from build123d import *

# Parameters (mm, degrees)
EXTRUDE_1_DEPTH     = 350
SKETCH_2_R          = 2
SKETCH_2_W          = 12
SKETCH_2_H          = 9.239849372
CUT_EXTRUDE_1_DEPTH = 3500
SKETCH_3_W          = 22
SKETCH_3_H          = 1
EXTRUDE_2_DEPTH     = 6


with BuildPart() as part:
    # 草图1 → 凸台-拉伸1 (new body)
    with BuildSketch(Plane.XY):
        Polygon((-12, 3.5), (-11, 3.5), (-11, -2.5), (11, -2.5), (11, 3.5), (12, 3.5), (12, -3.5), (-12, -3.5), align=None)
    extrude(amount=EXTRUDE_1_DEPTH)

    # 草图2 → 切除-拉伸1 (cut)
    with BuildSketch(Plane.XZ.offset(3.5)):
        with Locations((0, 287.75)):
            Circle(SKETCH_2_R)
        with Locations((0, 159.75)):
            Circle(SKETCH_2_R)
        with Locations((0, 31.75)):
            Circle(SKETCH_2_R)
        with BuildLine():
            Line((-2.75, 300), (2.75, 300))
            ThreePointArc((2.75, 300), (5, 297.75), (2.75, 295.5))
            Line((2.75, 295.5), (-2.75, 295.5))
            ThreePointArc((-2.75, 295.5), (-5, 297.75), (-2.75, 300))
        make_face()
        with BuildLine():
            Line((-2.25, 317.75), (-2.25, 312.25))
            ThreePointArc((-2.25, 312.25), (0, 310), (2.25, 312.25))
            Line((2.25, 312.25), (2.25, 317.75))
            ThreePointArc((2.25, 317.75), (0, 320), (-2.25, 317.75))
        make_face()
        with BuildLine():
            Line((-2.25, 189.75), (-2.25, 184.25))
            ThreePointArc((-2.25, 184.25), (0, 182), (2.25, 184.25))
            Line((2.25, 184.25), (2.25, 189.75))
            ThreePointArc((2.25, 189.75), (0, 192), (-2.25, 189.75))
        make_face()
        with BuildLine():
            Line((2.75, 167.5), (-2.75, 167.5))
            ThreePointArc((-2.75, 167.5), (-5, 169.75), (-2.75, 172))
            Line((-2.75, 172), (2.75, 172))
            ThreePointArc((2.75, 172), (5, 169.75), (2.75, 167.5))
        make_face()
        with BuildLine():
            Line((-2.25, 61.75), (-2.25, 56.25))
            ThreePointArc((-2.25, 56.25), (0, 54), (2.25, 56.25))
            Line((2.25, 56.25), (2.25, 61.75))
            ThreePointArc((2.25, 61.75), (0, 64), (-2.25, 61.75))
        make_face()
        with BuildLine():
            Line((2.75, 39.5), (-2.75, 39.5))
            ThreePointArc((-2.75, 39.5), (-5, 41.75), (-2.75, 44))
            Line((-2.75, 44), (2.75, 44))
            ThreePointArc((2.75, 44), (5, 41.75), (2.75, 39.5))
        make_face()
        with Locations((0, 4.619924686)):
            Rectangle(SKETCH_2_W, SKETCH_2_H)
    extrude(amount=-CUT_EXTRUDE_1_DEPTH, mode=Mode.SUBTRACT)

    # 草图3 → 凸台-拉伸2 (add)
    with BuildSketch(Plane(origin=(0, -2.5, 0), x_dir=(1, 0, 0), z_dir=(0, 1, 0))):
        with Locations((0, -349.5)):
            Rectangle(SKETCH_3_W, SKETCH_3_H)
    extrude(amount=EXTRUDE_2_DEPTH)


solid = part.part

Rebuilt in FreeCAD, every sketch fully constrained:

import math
import FreeCAD as App
import Part
import Sketcher
from FreeCAD import Vector

doc = App.newDocument("Part")
body = doc.addObject("PartDesign::Body", "Body")

sketch1 = doc.addObject("Sketcher::SketchObject", "Sketch")
body.addObject(sketch1)
sketch1.AttachmentSupport = (doc.XY_Plane, [""])
sketch1.MapMode = "FlatFace"
sketch1.addGeometry(Part.LineSegment(Vector(-11, 3.5, 0), Vector(-12, 3.5, 0)), False)
sketch1.addGeometry(Part.LineSegment(Vector(-12, 3.5, 0), Vector(-12, -3.5, 0)), False)
sketch1.addGeometry(Part.LineSegment(Vector(-12, -3.5, 0), Vector(12, -3.5, 0)), False)
sketch1.addGeometry(Part.LineSegment(Vector(12, -3.5, 0), Vector(12, 3.5, 0)), False)
sketch1.addGeometry(Part.LineSegment(Vector(12, 3.5, 0), Vector(11, 3.5, 0)), False)
sketch1.addGeometry(Part.LineSegment(Vector(11, 3.5, 0), Vector(11, -2.5, 0)), False)
sketch1.addGeometry(Part.LineSegment(Vector(11, -2.5, 0), Vector(-11, -2.5, 0)), False)
sketch1.addGeometry(Part.LineSegment(Vector(-11, -2.5, 0), Vector(-11, 3.5, 0)), False)
sketch1.addConstraint(Sketcher.Constraint("Coincident", 0, 2, 1, 1))
sketch1.addConstraint(Sketcher.Constraint("Coincident", 1, 2, 2, 1))
sketch1.addConstraint(Sketcher.Constraint("Coincident", 2, 2, 3, 1))
sketch1.addConstraint(Sketcher.Constraint("Coincident", 3, 2, 4, 1))
sketch1.addConstraint(Sketcher.Constraint("Coincident", 4, 2, 5, 1))
sketch1.addConstraint(Sketcher.Constraint("Coincident", 5, 2, 6, 1))
sketch1.addConstraint(Sketcher.Constraint("Coincident", 6, 2, 7, 1))
sketch1.addConstraint(Sketcher.Constraint("Coincident", 7, 2, 0, 1))
sketch1.addConstraint(Sketcher.Constraint("Horizontal", 0))
sketch1.addConstraint(Sketcher.Constraint("Vertical", 1))
sketch1.addConstraint(Sketcher.Constraint("Horizontal", 2))
sketch1.addConstraint(Sketcher.Constraint("Vertical", 3))
sketch1.addConstraint(Sketcher.Constraint("Horizontal", 4))
sketch1.addConstraint(Sketcher.Constraint("Vertical", 5))
sketch1.addConstraint(Sketcher.Constraint("Horizontal", 6))
sketch1.addConstraint(Sketcher.Constraint("Vertical", 7))
sketch1.addConstraint(Sketcher.Constraint("Symmetric", 0, 2, 2, 2, -1, 1))
sketch1.addConstraint(Sketcher.Constraint("Symmetric", 4, 2, 7, 2, -2))
sketch1.addConstraint(Sketcher.Constraint("DistanceX", 0, 2, 0, 1, 1.0))
sketch1.addConstraint(Sketcher.Constraint("DistanceX", 2, 1, 2, 2, 24.0))
sketch1.addConstraint(Sketcher.Constraint("DistanceY", 1, 2, 1, 1, 7.0))
sketch1.addConstraint(Sketcher.Constraint("DistanceY", 5, 2, 5, 1, 6.0))
pad1 = doc.addObject("PartDesign::Pad", "Pad")
body.addObject(pad1)
pad1.Profile = sketch1
pad1.Length = 350

sketch2 = doc.addObject("Sketcher::SketchObject", "Sketch001")
body.addObject(sketch2)
sketch2.AttachmentSupport = (doc.XZ_Plane, [""])
sketch2.MapMode = "FlatFace"
sketch2.AttachmentOffset = App.Placement(Vector(0, 0, 3.5), App.Rotation())
sketch2.addGeometry(Part.Circle(Vector(0, 287.8, 0), Vector(0, 0, 1), 2), False)
sketch2.addGeometry(Part.Circle(Vector(0, 159.8, 0), Vector(0, 0, 1), 2), False)
sketch2.addGeometry(Part.Circle(Vector(0, 31.8, 0), Vector(0, 0, 1), 2), False)
sketch2.addGeometry(Part.LineSegment(Vector(2.8, 300, 0), Vector(-2.8, 300, 0)), False)
sketch2.addGeometry(Part.ArcOfCircle(Part.Circle(Vector(-2.8, 297.8, 0), Vector(0, 0, 1), 2.2), math.radians(90), math.radians(270)), False)
sketch2.addGeometry(Part.LineSegment(Vector(-2.8, 295.5, 0), Vector(2.8, 295.5, 0)), False)
sketch2.addGeometry(Part.ArcOfCircle(Part.Circle(Vector(2.8, 297.8, 0), Vector(0, 0, 1), 2.2), math.radians(-90), math.radians(90)), False)
sketch2.addGeometry(Part.LineSegment(Vector(-2.2, 317.8, 0), Vector(-2.2, 312.2, 0)), False)
sketch2.addGeometry(Part.ArcOfCircle(Part.Circle(Vector(0, 312.2, 0), Vector(0, 0, 1), 2.2), math.radians(180), math.radians(360)), False)
sketch2.addGeometry(Part.LineSegment(Vector(2.2, 312.2, 0), Vector(2.2, 317.8, 0)), False)
sketch2.addGeometry(Part.ArcOfCircle(Part.Circle(Vector(0, 317.8, 0), Vector(0, 0, 1), 2.2), math.radians(0), math.radians(180)), False)
sketch2.addGeometry(Part.LineSegment(Vector(-2.2, 189.8, 0), Vector(-2.2, 184.2, 0)), False)
sketch2.addGeometry(Part.ArcOfCircle(Part.Circle(Vector(0, 184.2, 0), Vector(0, 0, 1), 2.2), math.radians(180), math.radians(360)), False)
sketch2.addGeometry(Part.LineSegment(Vector(2.2, 184.2, 0), Vector(2.2, 189.8, 0)), False)
sketch2.addGeometry(Part.ArcOfCircle(Part.Circle(Vector(0, 189.8, 0), Vector(0, 0, 1), 2.2), math.radians(0), math.radians(180)), False)
sketch2.addGeometry(Part.LineSegment(Vector(-2.8, 167.5, 0), Vector(2.8, 167.5, 0)), False)
sketch2.addGeometry(Part.ArcOfCircle(Part.Circle(Vector(2.8, 169.8, 0), Vector(0, 0, 1), 2.2), math.radians(-90), math.radians(90)), False)
sketch2.addGeometry(Part.LineSegment(Vector(2.8, 172, 0), Vector(-2.8, 172, 0)), False)
sketch2.addGeometry(Part.ArcOfCircle(Part.Circle(Vector(-2.8, 169.8, 0), Vector(0, 0, 1), 2.2), math.radians(90), math.radians(270)), False)
sketch2.addGeometry(Part.LineSegment(Vector(-2.2, 61.8, 0), Vector(-2.2, 56.2, 0)), False)
sketch2.addGeometry(Part.ArcOfCircle(Part.Circle(Vector(0, 56.2, 0), Vector(0, 0, 1), 2.2), math.radians(180), math.radians(360)), False)
sketch2.addGeometry(Part.LineSegment(Vector(2.2, 56.2, 0), Vector(2.2, 61.8, 0)), False)
sketch2.addGeometry(Part.ArcOfCircle(Part.Circle(Vector(0, 61.8, 0), Vector(0, 0, 1), 2.2), math.radians(0), math.radians(180)), False)
sketch2.addGeometry(Part.LineSegment(Vector(-2.8, 39.5, 0), Vector(2.8, 39.5, 0)), False)
sketch2.addGeometry(Part.ArcOfCircle(Part.Circle(Vector(2.8, 41.8, 0), Vector(0, 0, 1), 2.2), math.radians(-90), math.radians(90)), False)
sketch2.addGeometry(Part.LineSegment(Vector(2.8, 44, 0), Vector(-2.8, 44, 0)), False)
sketch2.addGeometry(Part.ArcOfCircle(Part.Circle(Vector(-2.8, 41.8, 0), Vector(0, 0, 1), 2.2), math.radians(90), math.radians(270)), False)
sketch2.addGeometry(Part.LineSegment(Vector(-6, 9.2, 0), Vector(-6, 0, 0)), False)
sketch2.addGeometry(Part.LineSegment(Vector(-6, 0, 0), Vector(6, 0, 0)), False)
sketch2.addGeometry(Part.LineSegment(Vector(6, 0, 0), Vector(6, 9.2, 0)), False)
sketch2.addGeometry(Part.LineSegment(Vector(6, 9.2, 0), Vector(-6, 9.2, 0)), False)
sketch2.addConstraint(Sketcher.Constraint("Tangent", 3, 2, 4, 1))
sketch2.addConstraint(Sketcher.Constraint("Tangent", 4, 2, 5, 1))
sketch2.addConstraint(Sketcher.Constraint("Tangent", 5, 2, 6, 1))
sketch2.addConstraint(Sketcher.Constraint("Tangent", 6, 2, 3, 1))
sketch2.addConstraint(Sketcher.Constraint("Tangent", 7, 2, 8, 1))
sketch2.addConstraint(Sketcher.Constraint("Tangent", 8, 2, 9, 1))
sketch2.addConstraint(Sketcher.Constraint("Tangent", 9, 2, 10, 1))
sketch2.addConstraint(Sketcher.Constraint("Tangent", 10, 2, 7, 1))
sketch2.addConstraint(Sketcher.Constraint("Tangent", 11, 2, 12, 1))
sketch2.addConstraint(Sketcher.Constraint("Tangent", 12, 2, 13, 1))
sketch2.addConstraint(Sketcher.Constraint("Tangent", 13, 2, 14, 1))
sketch2.addConstraint(Sketcher.Constraint("Tangent", 14, 2, 11, 1))
sketch2.addConstraint(Sketcher.Constraint("Tangent", 15, 2, 16, 1))
sketch2.addConstraint(Sketcher.Constraint("Tangent", 16, 2, 17, 1))
sketch2.addConstraint(Sketcher.Constraint("Tangent", 17, 2, 18, 1))
sketch2.addConstraint(Sketcher.Constraint("Tangent", 18, 2, 15, 1))
sketch2.addConstraint(Sketcher.Constraint("Tangent", 19, 2, 20, 1))
sketch2.addConstraint(Sketcher.Constraint("Tangent", 20, 2, 21, 1))
sketch2.addConstraint(Sketcher.Constraint("Tangent", 21, 2, 22, 1))
sketch2.addConstraint(Sketcher.Constraint("Tangent", 22, 2, 19, 1))
sketch2.addConstraint(Sketcher.Constraint("Tangent", 23, 2, 24, 1))
sketch2.addConstraint(Sketcher.Constraint("Tangent", 24, 2, 25, 1))
sketch2.addConstraint(Sketcher.Constraint("Tangent", 25, 2, 26, 1))
sketch2.addConstraint(Sketcher.Constraint("Tangent", 26, 2, 23, 1))
sketch2.addConstraint(Sketcher.Constraint("Coincident", 27, 2, 28, 1))
sketch2.addConstraint(Sketcher.Constraint("Coincident", 28, 2, 29, 1))
sketch2.addConstraint(Sketcher.Constraint("Coincident", 29, 2, 30, 1))
sketch2.addConstraint(Sketcher.Constraint("Coincident", 30, 2, 27, 1))
sketch2.addConstraint(Sketcher.Constraint("Horizontal", 3))
sketch2.addConstraint(Sketcher.Constraint("Horizontal", 5))
sketch2.addConstraint(Sketcher.Constraint("Vertical", 7))
sketch2.addConstraint(Sketcher.Constraint("Vertical", 9))
sketch2.addConstraint(Sketcher.Constraint("Vertical", 11))
sketch2.addConstraint(Sketcher.Constraint("Vertical", 13))
sketch2.addConstraint(Sketcher.Constraint("Horizontal", 15))
sketch2.addConstraint(Sketcher.Constraint("Horizontal", 17))
sketch2.addConstraint(Sketcher.Constraint("Vertical", 19))
sketch2.addConstraint(Sketcher.Constraint("Vertical", 21))
sketch2.addConstraint(Sketcher.Constraint("Horizontal", 23))
sketch2.addConstraint(Sketcher.Constraint("Horizontal", 25))
sketch2.addConstraint(Sketcher.Constraint("Vertical", 27))
sketch2.addConstraint(Sketcher.Constraint("Horizontal", 28))
sketch2.addConstraint(Sketcher.Constraint("Vertical", 29))
sketch2.addConstraint(Sketcher.Constraint("Horizontal", 30))
sketch2.addConstraint(Sketcher.Constraint("Equal", 0, 1))
sketch2.addConstraint(Sketcher.Constraint("Equal", 1, 2))
sketch2.addConstraint(Sketcher.Constraint("Equal", 6, 8))
sketch2.addConstraint(Sketcher.Constraint("Equal", 10, 12))
sketch2.addConstraint(Sketcher.Constraint("Equal", 14, 16))
sketch2.addConstraint(Sketcher.Constraint("Equal", 18, 20))
sketch2.addConstraint(Sketcher.Constraint("Equal", 22, 24))
sketch2.addConstraint(Sketcher.Constraint("Symmetric", 27, 2, 28, 2, -1, 1))
sketch2.addConstraint(Sketcher.Constraint("PointOnObject", 0, 3, -2))
sketch2.addConstraint(Sketcher.Constraint("PointOnObject", 1, 3, -2))
sketch2.addConstraint(Sketcher.Constraint("PointOnObject", 2, 3, -2))
sketch2.addConstraint(Sketcher.Constraint("PointOnObject", 8, 3, -2))
sketch2.addConstraint(Sketcher.Constraint("PointOnObject", 12, 3, -2))
sketch2.addConstraint(Sketcher.Constraint("PointOnObject", 20, 3, -2))
sketch2.addConstraint(Sketcher.Constraint("Vertical", 6, 3, 16, 3))
sketch2.addConstraint(Sketcher.Constraint("Vertical", 4, 3, 18, 3))
sketch2.addConstraint(Sketcher.Constraint("Vertical", 16, 3, 24, 3))
sketch2.addConstraint(Sketcher.Constraint("Vertical", 18, 3, 26, 3))
sketch2.addConstraint(Sketcher.Constraint("Equal", 25, 7))
sketch2.addConstraint(Sketcher.Constraint("Equal", 9, 11))
sketch2.addConstraint(Sketcher.Constraint("Equal", 13, 19))
sketch2.addConstraint(Sketcher.Constraint("Diameter", 0, 4.0))
sketch2.addConstraint(Sketcher.Constraint("DistanceX", 28, 1, 28, 2, 12.0))
sketch2.addConstraint(Sketcher.Constraint("Radius", 4, 2.25))
sketch2.addConstraint(Sketcher.Constraint("DistanceX", 3, 2, 3, 1, 5.5))
sketch2.addConstraint(Sketcher.Constraint("DistanceY", -1, 1, 3, 2, 300.0))
sketch2.addConstraint(Sketcher.Constraint("DistanceY", -1, 1, 16, 2, 172.0))
sketch2.addConstraint(Sketcher.Constraint("DistanceY", -1, 1, 24, 2, 44.0))
sketch2.addConstraint(Sketcher.Constraint("DistanceY", 1, 3, 0, 3, 128.0))
sketch2.addConstraint(Sketcher.Constraint("DistanceY", 2, 3, 1, 3, 128.0))
sketch2.addConstraint(Sketcher.Constraint("DistanceY", 0, 3, 4, 3, 10.0))
sketch2.addConstraint(Sketcher.Constraint("DistanceY", 4, 3, 10, 3, 20.0))
sketch2.addConstraint(Sketcher.Constraint("DistanceY", 12, 3, 8, 3, 128.0))
sketch2.addConstraint(Sketcher.Constraint("DistanceY", 20, 3, 12, 3, 128.0))
sketch2.addConstraint(Sketcher.Constraint("DistanceX", 7, 2, 6, 2, 5.0))
sketch2.addConstraint(Sketcher.Constraint("DistanceY", 27, 2, 27, 1, 9.239849))
pocket1 = doc.addObject("PartDesign::Pocket", "Pocket")
body.addObject(pocket1)
pocket1.Profile = sketch2
pocket1.Length = 3500

sketch3 = doc.addObject("Sketcher::SketchObject", "Sketch002")
body.addObject(sketch3)
sketch3.AttachmentSupport = (doc.XZ_Plane, [""])
sketch3.MapMode = "FlatFace"
sketch3.AttachmentOffset = App.Placement(Vector(0, 0, 2.5), App.Rotation())
sketch3.addGeometry(Part.LineSegment(Vector(-11, 349, 0), Vector(-11, 350, 0)), False)
sketch3.addGeometry(Part.LineSegment(Vector(-11, 350, 0), Vector(11, 350, 0)), False)
sketch3.addGeometry(Part.LineSegment(Vector(11, 350, 0), Vector(11, 349, 0)), False)
sketch3.addGeometry(Part.LineSegment(Vector(11, 349, 0), Vector(-11, 349, 0)), False)
sketch3.addConstraint(Sketcher.Constraint("Coincident", 0, 2, 1, 1))
sketch3.addConstraint(Sketcher.Constraint("Coincident", 1, 2, 2, 1))
sketch3.addConstraint(Sketcher.Constraint("Coincident", 2, 2, 3, 1))
sketch3.addConstraint(Sketcher.Constraint("Coincident", 3, 2, 0, 1))
sketch3.addConstraint(Sketcher.Constraint("Vertical", 0))
sketch3.addConstraint(Sketcher.Constraint("Horizontal", 1))
sketch3.addConstraint(Sketcher.Constraint("Vertical", 2))
sketch3.addConstraint(Sketcher.Constraint("Horizontal", 3))
sketch3.addConstraint(Sketcher.Constraint("DistanceX", 1, 1, 1, 2, 22.0))
sketch3.addConstraint(Sketcher.Constraint("DistanceY", 0, 1, 0, 2, 1.0))
sketch3.addConstraint(Sketcher.Constraint("DistanceX", 0, 2, -1, 1, 11.0))
sketch3.addConstraint(Sketcher.Constraint("DistanceY", -1, 1, 0, 2, 350.0))
pad2 = doc.addObject("PartDesign::Pad", "Pad001")
body.addObject(pad2)
pad2.Profile = sketch3
pad2.Length = 6
pad2.Reversed = True

doc.recompute()
